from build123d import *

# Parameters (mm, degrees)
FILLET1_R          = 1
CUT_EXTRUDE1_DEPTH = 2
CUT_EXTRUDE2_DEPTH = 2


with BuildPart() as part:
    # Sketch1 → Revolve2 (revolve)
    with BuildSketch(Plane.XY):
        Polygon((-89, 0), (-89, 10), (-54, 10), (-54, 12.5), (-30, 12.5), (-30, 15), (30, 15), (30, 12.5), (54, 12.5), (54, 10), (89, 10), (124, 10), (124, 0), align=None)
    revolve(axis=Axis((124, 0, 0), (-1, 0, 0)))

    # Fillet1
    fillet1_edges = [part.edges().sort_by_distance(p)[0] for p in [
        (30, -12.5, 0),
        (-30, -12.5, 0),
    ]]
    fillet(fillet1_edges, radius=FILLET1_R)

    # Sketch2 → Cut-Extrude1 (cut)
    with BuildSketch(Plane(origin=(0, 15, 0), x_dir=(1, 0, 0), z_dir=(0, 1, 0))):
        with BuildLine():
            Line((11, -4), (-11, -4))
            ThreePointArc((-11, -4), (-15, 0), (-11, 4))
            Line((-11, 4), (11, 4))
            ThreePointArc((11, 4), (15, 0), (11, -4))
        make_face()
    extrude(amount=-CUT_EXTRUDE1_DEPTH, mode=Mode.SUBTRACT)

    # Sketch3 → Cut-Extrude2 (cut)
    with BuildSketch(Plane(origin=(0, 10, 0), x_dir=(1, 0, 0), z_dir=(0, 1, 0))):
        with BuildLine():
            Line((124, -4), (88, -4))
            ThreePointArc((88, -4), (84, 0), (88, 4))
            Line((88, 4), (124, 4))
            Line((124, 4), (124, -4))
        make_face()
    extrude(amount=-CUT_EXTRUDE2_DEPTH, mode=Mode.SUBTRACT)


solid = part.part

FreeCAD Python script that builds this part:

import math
import FreeCAD as App
import Part
import Sketcher
from FreeCAD import Vector


def edges_at(feature, points):
    """Names of the edges that pass closest to the given points."""
    edges = feature.Shape.Edges
    near = lambda p: min(range(len(edges)), key=lambda i: edges[i].distToShape(Part.Vertex(*p))[0])
    return sorted({f"Edge{near(p) + 1}" for p in points})


def add_polygon(sketch, points):
    """Adds a closed chain of lines whose ends are joined by coincident constraints."""
    first, n = sketch.GeometryCount, len(points)
    for a, b in zip(points, points[1:] + points[:1]):
        sketch.addGeometry(Part.LineSegment(App.Vector(*a, 0), App.Vector(*b, 0)), False)
    for i in range(n):
        sketch.addConstraint(Sketcher.Constraint("Coincident", first + i, 2, first + (i + 1) % n, 1))

doc = App.newDocument("Part")
body = doc.addObject("PartDesign::Body", "Body")

# Sketch on XY plane
sketch1 = body.newObject("Sketcher::SketchObject", "Sketch")
sketch1.AttachmentSupport = (doc.getObject("XY_Plane"), [""])
sketch1.MapMode = "FlatFace"
add_polygon(sketch1, [(-89, 10), (-89, 0), (124, 0), (124, 10), (54, 10), (54, 12.5), (30, 12.5), (30, 15), (-30, 15), (-30, 12.5), (-54, 12.5), (-54, 10)])  # lines 0-11
sketch1.addConstraint(Sketcher.Constraint("Vertical", 0))
sketch1.addConstraint(Sketcher.Constraint("Horizontal", 1))
sketch1.addConstraint(Sketcher.Constraint("Vertical", 2))
sketch1.addConstraint(Sketcher.Constraint("Horizontal", 3))
sketch1.addConstraint(Sketcher.Constraint("Vertical", 4))
sketch1.addConstraint(Sketcher.Constraint("Horizontal", 5))
sketch1.addConstraint(Sketcher.Constraint("Vertical", 6))
sketch1.addConstraint(Sketcher.Constraint("Horizontal", 7))
sketch1.addConstraint(Sketcher.Constraint("Vertical", 8))
sketch1.addConstraint(Sketcher.Constraint("Horizontal", 9))
sketch1.addConstraint(Sketcher.Constraint("Vertical", 10))
sketch1.addConstraint(Sketcher.Constraint("Horizontal", 11))
sketch1.addConstraint(Sketcher.Constraint("Symmetric", 5, 2, 8, 2, -2))
sketch1.addConstraint(Sketcher.Constraint("Symmetric", 3, 2, 10, 2, -2))
sketch1.addConstraint(Sketcher.Constraint("PointOnObject", 0, 2, -1))
sketch1.addConstraint(Sketcher.Constraint("Equal", 4, 6))
sketch1.addConstraint(Sketcher.Constraint("DistanceX", 1, 1, 1, 2, 213.0))
sketch1.addConstraint(Sketcher.Constraint("DistanceX", 3, 2, 3, 1, 70.0))
sketch1.addConstraint(Sketcher.Constraint("DistanceX", 5, 2, 5, 1, 24.0))
sketch1.addConstraint(Sketcher.Constraint("DistanceX", 7, 2, 7, 1, 60.0))
sketch1.addConstraint(Sketcher.Constraint("DistanceY", 0, 2, 0, 1, 10.0))
sketch1.addConstraint(Sketcher.Constraint("DistanceY", 4, 1, 4, 2, 2.5))
revolution = body.newObject("PartDesign::Revolution", "Revolution")
revolution.Profile = sketch1
revolution.ReferenceAxis = (sketch1, ["H_Axis"])
revolution.Angle = 360
doc.recompute()

fillet = body.newObject("PartDesign::Fillet", "Fillet")
fillet.Base = (revolution, edges_at(revolution, [(30, -12.5, 0), (-30, -12.5, 0)]))
fillet.Radius = 1

# Sketch on XZ plane
sketch2 = body.newObject("Sketcher::SketchObject", "Sketch001")
sketch2.AttachmentSupport = (doc.getObject("XZ_Plane"), [""])
sketch2.MapMode = "FlatFace"
sketch2.AttachmentOffset = App.Placement(Vector(0, 0, -15), App.Rotation())
sketch2.addGeometry(Part.LineSegment(Vector(-11, 4, 0), Vector(11, 4, 0)), False)
sketch2.addGeometry(Part.ArcOfCircle(Part.Circle(Vector(11, 0, 0), Vector(0, 0, 1), 4), math.radians(-90), math.radians(90)), False)
sketch2.addGeometry(Part.LineSegment(Vector(11, -4, 0), Vector(-11, -4, 0)), False)
sketch2.addGeometry(Part.ArcOfCircle(Part.Circle(Vector(-11, 0, 0), Vector(0, 0, 1), 4), math.radians(90), math.radians(270)), False)
sketch2.addConstraint(Sketcher.Constraint("Tangent", 0, 2, 1, 2))
sketch2.addConstraint(Sketcher.Constraint("Tangent", 1, 1, 2, 1))
sketch2.addConstraint(Sketcher.Constraint("Tangent", 2, 2, 3, 2))
sketch2.addConstraint(Sketcher.Constraint("Tangent", 3, 1, 0, 1))
sketch2.addConstraint(Sketcher.Constraint("Horizontal", 0))
sketch2.addConstraint(Sketcher.Constraint("Horizontal", 2))
sketch2.addConstraint(Sketcher.Constraint("Symmetric", 1, 3, 3, 3, -1, 1))
sketch2.addConstraint(Sketcher.Constraint("Radius", 1, 4.0))
sketch2.addConstraint(Sketcher.Constraint("DistanceX", 0, 1, 0, 2, 22.0))
pocket1 = body.newObject("PartDesign::Pocket", "Pocket")
pocket1.Profile = sketch2
pocket1.Length = 2
pocket1.Reversed = True

# Sketch on XZ plane
sketch3 = body.newObject("Sketcher::SketchObject", "Sketch002")
sketch3.AttachmentSupport = (doc.getObject("XZ_Plane"), [""])
sketch3.MapMode = "FlatFace"
sketch3.AttachmentOffset = App.Placement(Vector(0, 0, -10), App.Rotation())
sketch3.addGeometry(Part.LineSegment(Vector(88, 4, 0), Vector(124, 4, 0)), False)
sketch3.addGeometry(Part.LineSegment(Vector(124, 4, 0), Vector(124, -4, 0)), False)
sketch3.addGeometry(Part.LineSegment(Vector(124, -4, 0), Vector(88, -4, 0)), False)
sketch3.addGeometry(Part.ArcOfCircle(Part.Circle(Vector(88, 0, 0), Vector(0, 0, 1), 4), math.radians(90), math.radians(270)), False)
sketch3.addConstraint(Sketcher.Constraint("Coincident", 0, 2, 1, 1))
sketch3.addConstraint(Sketcher.Constraint("Coincident", 1, 2, 2, 1))
sketch3.addConstraint(Sketcher.Constraint("Tangent", 2, 2, 3, 2))
sketch3.addConstraint(Sketcher.Constraint("Tangent", 3, 1, 0, 1))
sketch3.addConstraint(Sketcher.Constraint("Horizontal", 0))
sketch3.addConstraint(Sketcher.Constraint("Vertical", 1))
sketch3.addConstraint(Sketcher.Constraint("Horizontal", 2))
sketch3.addConstraint(Sketcher.Constraint("PointOnObject", 3, 3, -1))
sketch3.addConstraint(Sketcher.Constraint("Radius", 3, 4.0))
sketch3.addConstraint(Sketcher.Constraint("DistanceX", 0, 1, 0, 2, 36.0))
sketch3.addConstraint(Sketcher.Constraint("DistanceX", -1, 1, 3, 3, 88.0))
pocket2 = body.newObject("PartDesign::Pocket", "Pocket001")
pocket2.Profile = sketch3
pocket2.Length = 2
pocket2.Reversed = True

doc.recompute()
